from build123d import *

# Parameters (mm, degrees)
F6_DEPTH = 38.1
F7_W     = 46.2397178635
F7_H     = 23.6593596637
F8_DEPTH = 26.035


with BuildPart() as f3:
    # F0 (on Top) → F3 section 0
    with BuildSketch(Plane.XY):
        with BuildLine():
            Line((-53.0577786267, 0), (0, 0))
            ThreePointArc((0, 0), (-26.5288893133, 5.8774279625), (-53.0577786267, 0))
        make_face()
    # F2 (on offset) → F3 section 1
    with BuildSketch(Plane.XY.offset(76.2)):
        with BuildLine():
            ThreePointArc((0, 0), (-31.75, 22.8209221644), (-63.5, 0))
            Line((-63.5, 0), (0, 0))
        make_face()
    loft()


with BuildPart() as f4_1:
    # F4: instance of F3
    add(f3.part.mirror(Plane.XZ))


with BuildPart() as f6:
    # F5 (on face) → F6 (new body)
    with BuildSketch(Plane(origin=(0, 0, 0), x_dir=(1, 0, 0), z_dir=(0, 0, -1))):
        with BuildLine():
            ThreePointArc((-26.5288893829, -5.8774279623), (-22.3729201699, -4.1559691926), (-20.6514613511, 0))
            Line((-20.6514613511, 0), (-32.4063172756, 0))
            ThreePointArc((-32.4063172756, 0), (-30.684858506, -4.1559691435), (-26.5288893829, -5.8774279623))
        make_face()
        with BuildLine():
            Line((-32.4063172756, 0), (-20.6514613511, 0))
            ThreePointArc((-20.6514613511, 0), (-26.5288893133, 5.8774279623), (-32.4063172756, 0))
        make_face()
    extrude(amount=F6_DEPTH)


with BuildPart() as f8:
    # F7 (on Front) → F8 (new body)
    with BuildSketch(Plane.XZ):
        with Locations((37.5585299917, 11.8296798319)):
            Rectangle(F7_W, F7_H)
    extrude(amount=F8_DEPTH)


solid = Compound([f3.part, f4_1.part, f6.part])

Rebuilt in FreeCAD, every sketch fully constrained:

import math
import FreeCAD as App
import Part
import Sketcher
Q = App.Units.Quantity

doc = App.newDocument("Part")
body = doc.addObject("PartDesign::Body", "Body")

# Sketch on XY plane
sketch1 = body.newObject("Sketcher::SketchObject", "Sketch")
sketch1.AttachmentSupport = (doc.getObject("XY_Plane"), [""])
sketch1.MapMode = "FlatFace"
sketch1.addGeometry([
    Part.LineSegment(App.Vector(-53, 0, 0), App.Vector(0, 0, 0)),
    Part.ArcOfCircle(Part.Circle(App.Vector(-27, -57, 0), App.Vector(0, 0, 1), 63), math.radians(65), math.radians(115)),
], False)
sketch1.addConstraint([
    Sketcher.Constraint("Coincident", 0, 1, 1, 2),
    Sketcher.Constraint("Coincident", 1, 1, 0, 2),
    Sketcher.Constraint("Horizontal", 0),
    Sketcher.Constraint("Coincident", 1, 1, -1, 1),
    Sketcher.Constraint("Radius", 1, 62.810309),
    Sketcher.Constraint("DistanceX", 0, 1, 0, 2, 53.057779),
])

# Sketch on XY plane
sketch2 = body.newObject("Sketcher::SketchObject", "Sketch001")
sketch2.AttachmentSupport = (doc.getObject("XY_Plane"), [""])
sketch2.MapMode = "FlatFace"
sketch2.AttachmentOffset = App.Placement(App.Vector(0, 0, 3 * 25.4), App.Rotation())
sketch2.addGeometry([
    Part.ArcOfCircle(Part.Circle(App.Vector(-32, -11, 0), App.Vector(0, 0, 1), 33), math.radians(19), math.radians(161)),
    Part.LineSegment(App.Vector(-64, 0, 0), App.Vector(0, 0, 0)),
], False)
sketch2.addConstraint([
    Sketcher.Constraint("Coincident", 0, 1, 1, 2),
    Sketcher.Constraint("Coincident", 1, 1, 0, 2),
    Sketcher.Constraint("Horizontal", 1),
    Sketcher.Constraint("Coincident", 0, 1, -1, 1),
    Sketcher.Constraint("DistanceX", 1, 1, 1, 2, Q("2.5 in")),
    Sketcher.Constraint("Radius", 0, 33.496828),
])

additiveloft = body.newObject("PartDesign::AdditiveLoft", "AdditiveLoft")
additiveloft.Profile = sketch1
additiveloft.Sections = [sketch2]
body2 = doc.addObject("PartDesign::Body", "Body001")
doc.recompute()

mirroring = doc.addObject("Part::Mirroring", "Mirroring")
mirroring.Source = body
mirroring.Base = App.Vector(0, 0, 0)
mirroring.Normal = App.Vector(0, -1, 0)
body2.BaseFeature = mirroring
doc.recompute()
body3 = doc.addObject("PartDesign::Body", "Body002")

# Sketch on XY plane
sketch3 = body3.newObject("Sketcher::SketchObject", "Sketch002")
sketch3.AttachmentSupport = (doc.getObject("XY_Plane002"), [""])
sketch3.MapMode = "FlatFace"
sketch3.addGeometry([
    Part.ArcOfCircle(Part.Circle(App.Vector(-27, 0, 0), App.Vector(0, 0, 1), 6), math.radians(0), math.radians(90)),
    Part.ArcOfCircle(Part.Circle(App.Vector(-27, 0, 0), App.Vector(0, 0, 1), 6), math.radians(180), math.radians(360)),
    Part.ArcOfCircle(Part.Circle(App.Vector(-27, 0, 0), App.Vector(0, 0, 1), 6), math.radians(90), math.radians(180)),
], False)
sketch3.addConstraint([
    Sketcher.Constraint("Tangent", 0, 1, 1, 2),
    Sketcher.Constraint("Tangent", 1, 1, 2, 2),
    Sketcher.Constraint("Tangent", 2, 1, 0, 2),
    Sketcher.Constraint("PointOnObject", 0, 3, -1),
    Sketcher.Constraint("PointOnObject", 0, 1, -1),
    Sketcher.Constraint("PointOnObject", 1, 1, -1),
    Sketcher.Constraint("Vertical", 1, 3, 2, 1),
    Sketcher.Constraint("Radius", 0, 5.877428),
    Sketcher.Constraint("DistanceX", 0, 3, -1, 1, 26.528889),
])
pad1 = body3.newObject("PartDesign::Pad", "Pad")
pad1.Profile = sketch3
pad1.Length = Q("1.5 in")
pad1.Reversed = True
body4 = doc.addObject("PartDesign::Body", "Body003")

# Sketch on XZ plane
sketch4 = body4.newObject("Sketcher::SketchObject", "Sketch003")
sketch4.AttachmentSupport = (doc.getObject("XZ_Plane003"), [""])
sketch4.MapMode = "FlatFace"
sketch4.addGeometry([
    Part.LineSegment(App.Vector(14, 24, 0), App.Vector(14, 0, 0)),
    Part.LineSegment(App.Vector(14, 0, 0), App.Vector(61, 0, 0)),
    Part.LineSegment(App.Vector(61, 0, 0), App.Vector(61, 24, 0)),
    Part.LineSegment(App.Vector(61, 24, 0), App.Vector(14, 24, 0)),
], False)
sketch4.addConstraint([
    Sketcher.Constraint("Coincident", 0, 2, 1, 1),
    Sketcher.Constraint("Coincident", 1, 2, 2, 1),
    Sketcher.Constraint("Coincident", 2, 2, 3, 1),
    Sketcher.Constraint("Coincident", 3, 2, 0, 1),
    Sketcher.Constraint("Vertical", 0),
    Sketcher.Constraint("Horizontal", 1),
    Sketcher.Constraint("Vertical", 2),
    Sketcher.Constraint("Horizontal", 3),
    Sketcher.Constraint("PointOnObject", 0, 2, -1),
    Sketcher.Constraint("DistanceY", 0, 2, 0, 1, 23.65936),
    Sketcher.Constraint("DistanceX", 1, 1, 1, 2, 46.239718),
    Sketcher.Constraint("DistanceX", -1, 1, 0, 2, 14.438671),
])
pad2 = body4.newObject("PartDesign::Pad", "Pad001")
pad2.Profile = sketch4
pad2.Length = Q("1.025 in")
body4.Visibility = False
mirroring.Visibility = False

doc.recompute()
